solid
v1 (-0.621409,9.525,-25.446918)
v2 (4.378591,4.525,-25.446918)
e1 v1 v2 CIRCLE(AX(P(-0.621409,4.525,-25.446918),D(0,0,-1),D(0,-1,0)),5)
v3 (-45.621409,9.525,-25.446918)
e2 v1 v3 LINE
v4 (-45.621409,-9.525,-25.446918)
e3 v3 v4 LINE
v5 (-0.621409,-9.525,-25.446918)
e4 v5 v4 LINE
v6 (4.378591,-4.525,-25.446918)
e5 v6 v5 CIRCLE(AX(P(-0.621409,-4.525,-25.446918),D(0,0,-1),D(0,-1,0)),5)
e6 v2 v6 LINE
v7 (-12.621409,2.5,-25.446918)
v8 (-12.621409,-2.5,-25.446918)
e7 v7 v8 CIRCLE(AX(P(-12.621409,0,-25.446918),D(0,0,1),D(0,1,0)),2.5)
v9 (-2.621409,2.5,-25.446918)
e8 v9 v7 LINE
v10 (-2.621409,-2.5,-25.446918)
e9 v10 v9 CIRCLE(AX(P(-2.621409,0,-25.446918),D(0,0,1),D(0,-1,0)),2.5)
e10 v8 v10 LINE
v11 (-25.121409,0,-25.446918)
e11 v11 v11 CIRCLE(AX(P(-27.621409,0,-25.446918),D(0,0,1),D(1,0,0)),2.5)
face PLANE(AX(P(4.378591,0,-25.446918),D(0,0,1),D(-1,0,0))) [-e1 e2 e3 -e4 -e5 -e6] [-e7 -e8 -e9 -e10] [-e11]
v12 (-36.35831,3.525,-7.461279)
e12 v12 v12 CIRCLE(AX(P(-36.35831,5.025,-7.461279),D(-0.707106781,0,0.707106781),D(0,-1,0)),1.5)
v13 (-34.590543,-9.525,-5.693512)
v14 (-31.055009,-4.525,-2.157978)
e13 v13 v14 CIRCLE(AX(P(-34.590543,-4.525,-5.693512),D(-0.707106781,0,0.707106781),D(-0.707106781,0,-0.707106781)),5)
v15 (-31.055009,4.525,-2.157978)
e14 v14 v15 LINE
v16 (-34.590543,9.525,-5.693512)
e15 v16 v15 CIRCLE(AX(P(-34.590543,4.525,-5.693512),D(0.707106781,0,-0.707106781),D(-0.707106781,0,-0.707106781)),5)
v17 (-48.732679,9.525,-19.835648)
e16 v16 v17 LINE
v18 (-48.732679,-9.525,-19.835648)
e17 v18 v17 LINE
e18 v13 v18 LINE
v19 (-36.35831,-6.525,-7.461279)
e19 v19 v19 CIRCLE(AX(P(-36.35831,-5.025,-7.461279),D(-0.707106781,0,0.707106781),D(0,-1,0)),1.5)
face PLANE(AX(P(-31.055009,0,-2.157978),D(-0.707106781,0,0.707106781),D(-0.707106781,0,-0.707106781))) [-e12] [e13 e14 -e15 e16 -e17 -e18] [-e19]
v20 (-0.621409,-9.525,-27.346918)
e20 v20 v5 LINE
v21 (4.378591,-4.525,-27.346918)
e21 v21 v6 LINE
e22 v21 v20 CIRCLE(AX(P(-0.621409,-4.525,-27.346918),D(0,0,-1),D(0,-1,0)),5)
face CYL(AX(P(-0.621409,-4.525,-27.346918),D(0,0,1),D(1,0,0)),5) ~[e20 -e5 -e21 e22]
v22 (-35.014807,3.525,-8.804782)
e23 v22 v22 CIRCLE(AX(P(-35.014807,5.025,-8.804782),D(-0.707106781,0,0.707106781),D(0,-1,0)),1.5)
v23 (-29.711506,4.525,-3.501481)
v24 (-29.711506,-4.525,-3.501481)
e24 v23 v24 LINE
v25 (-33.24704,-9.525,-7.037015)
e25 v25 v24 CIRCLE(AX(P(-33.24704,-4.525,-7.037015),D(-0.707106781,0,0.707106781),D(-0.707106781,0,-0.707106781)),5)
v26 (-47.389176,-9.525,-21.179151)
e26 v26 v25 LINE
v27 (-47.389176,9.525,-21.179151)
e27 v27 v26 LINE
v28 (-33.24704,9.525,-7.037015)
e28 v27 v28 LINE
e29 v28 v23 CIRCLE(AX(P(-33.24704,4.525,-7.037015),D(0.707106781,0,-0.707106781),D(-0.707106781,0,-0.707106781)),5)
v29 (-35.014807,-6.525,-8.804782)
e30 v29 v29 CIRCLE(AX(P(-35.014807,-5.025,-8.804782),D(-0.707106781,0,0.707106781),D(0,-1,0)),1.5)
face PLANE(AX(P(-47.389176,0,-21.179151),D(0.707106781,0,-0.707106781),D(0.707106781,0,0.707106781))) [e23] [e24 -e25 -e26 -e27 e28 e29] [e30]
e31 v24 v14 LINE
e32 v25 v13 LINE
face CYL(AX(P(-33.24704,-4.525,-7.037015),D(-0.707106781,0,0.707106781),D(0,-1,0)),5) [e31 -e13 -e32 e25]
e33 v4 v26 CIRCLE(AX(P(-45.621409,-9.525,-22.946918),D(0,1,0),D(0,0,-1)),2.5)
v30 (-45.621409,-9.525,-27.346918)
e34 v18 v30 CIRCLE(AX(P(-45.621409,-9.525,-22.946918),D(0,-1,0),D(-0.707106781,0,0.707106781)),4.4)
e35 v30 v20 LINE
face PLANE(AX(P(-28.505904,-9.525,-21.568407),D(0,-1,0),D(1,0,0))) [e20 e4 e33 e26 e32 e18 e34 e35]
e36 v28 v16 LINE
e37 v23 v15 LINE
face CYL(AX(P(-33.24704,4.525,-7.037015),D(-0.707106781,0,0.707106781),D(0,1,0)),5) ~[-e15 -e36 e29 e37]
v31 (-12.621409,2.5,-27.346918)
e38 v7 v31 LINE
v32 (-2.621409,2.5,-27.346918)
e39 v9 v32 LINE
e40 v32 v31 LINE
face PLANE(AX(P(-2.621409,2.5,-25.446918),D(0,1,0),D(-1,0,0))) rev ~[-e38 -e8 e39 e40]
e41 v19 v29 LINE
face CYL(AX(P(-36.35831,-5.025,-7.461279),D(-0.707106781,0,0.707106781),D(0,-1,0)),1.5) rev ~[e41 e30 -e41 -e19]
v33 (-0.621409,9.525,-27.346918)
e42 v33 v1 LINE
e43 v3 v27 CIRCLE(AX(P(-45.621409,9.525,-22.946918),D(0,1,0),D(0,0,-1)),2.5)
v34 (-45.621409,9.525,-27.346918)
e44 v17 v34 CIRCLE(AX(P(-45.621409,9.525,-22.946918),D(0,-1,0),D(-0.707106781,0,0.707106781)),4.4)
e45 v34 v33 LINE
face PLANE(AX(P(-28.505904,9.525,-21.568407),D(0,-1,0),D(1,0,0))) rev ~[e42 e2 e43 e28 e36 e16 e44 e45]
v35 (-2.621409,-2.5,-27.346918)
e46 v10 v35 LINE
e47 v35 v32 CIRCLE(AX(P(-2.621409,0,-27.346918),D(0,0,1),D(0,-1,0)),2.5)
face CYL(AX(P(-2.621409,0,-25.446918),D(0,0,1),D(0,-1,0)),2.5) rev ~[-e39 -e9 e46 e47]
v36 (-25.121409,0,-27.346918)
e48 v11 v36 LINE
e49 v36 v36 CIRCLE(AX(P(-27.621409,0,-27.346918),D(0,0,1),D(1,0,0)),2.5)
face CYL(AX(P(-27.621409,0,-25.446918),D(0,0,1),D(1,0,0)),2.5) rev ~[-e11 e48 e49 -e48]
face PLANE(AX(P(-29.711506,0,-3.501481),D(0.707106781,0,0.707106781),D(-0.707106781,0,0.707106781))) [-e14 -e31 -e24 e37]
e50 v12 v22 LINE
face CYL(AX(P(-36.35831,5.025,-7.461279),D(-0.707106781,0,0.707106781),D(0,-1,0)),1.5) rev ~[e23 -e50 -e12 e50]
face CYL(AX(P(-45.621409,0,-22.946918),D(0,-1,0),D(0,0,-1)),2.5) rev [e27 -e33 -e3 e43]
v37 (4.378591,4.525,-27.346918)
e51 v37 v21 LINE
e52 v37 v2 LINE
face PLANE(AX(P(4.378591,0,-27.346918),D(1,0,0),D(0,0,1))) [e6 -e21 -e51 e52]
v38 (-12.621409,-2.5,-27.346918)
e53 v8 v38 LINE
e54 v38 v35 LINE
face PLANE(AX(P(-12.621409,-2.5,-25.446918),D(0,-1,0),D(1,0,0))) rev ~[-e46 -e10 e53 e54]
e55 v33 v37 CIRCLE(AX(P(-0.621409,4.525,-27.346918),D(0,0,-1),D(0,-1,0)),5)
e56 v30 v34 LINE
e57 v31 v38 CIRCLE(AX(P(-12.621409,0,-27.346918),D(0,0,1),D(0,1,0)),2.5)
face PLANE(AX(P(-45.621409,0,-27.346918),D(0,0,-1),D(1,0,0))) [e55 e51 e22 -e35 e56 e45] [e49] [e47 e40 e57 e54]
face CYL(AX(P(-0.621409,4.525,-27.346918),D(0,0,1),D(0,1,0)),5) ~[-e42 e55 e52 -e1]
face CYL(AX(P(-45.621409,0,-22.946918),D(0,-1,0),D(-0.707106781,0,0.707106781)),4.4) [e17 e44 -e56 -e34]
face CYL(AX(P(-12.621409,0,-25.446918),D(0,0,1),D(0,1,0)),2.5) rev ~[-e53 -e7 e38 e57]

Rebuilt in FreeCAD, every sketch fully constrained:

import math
import FreeCAD as App
import Part
import Sketcher
Q = App.Units.Quantity


def edges_at(feature, points):
    """Names of the edges that pass closest to the given points."""
    edges = feature.Shape.Edges
    near = lambda p: min(range(len(edges)), key=lambda i: edges[i].distToShape(Part.Vertex(*p))[0])
    return sorted({f"Edge{near(p) + 1}" for p in points})

doc = App.newDocument("Part")
body = doc.addObject("PartDesign::Body", "Body")

sketch1 = doc.addObject("Sketcher::SketchObject", "Sketch")
body.addObject(sketch1)
sketch1.AttachmentSupport = (doc.XZ_Plane, [""])
sketch1.MapMode = "FlatFace"
sketch1.addGeometry([
    Part.LineSegment(App.Vector(-45.6, -27.3, 0), App.Vector(4.4, -27.3, 0)),
    Part.LineSegment(App.Vector(4.4, -27.3, 0), App.Vector(4.4, -25.4, 0)),
    Part.LineSegment(App.Vector(4.4, -25.4, 0), App.Vector(-45.6, -25.4, 0)),
    Part.ArcOfCircle(Part.Circle(App.Vector(-45.6, -22.9, 0), App.Vector(0, 0, 1), 2.5), math.radians(135), math.radians(270)),
    Part.LineSegment(App.Vector(-47.4, -21.2, 0), App.Vector(-29.7, -3.5, 0)),
    Part.LineSegment(App.Vector(-29.7, -3.5, 0), App.Vector(-31.1, -2.2, 0)),
    Part.LineSegment(App.Vector(-31.1, -2.2, 0), App.Vector(-48.7, -19.8, 0)),
    Part.ArcOfCircle(Part.Circle(App.Vector(-45.6, -22.9, 0), App.Vector(0, 0, 1), 4.4), math.radians(135), math.radians(270)),
], False)
sketch1.addConstraint([
    Sketcher.Constraint("Coincident", 0, 2, 1, 1),
    Sketcher.Constraint("Coincident", 1, 2, 2, 1),
    Sketcher.Constraint("Tangent", 2, 2, 3, 2),
    Sketcher.Constraint("Tangent", 3, 1, 4, 1),
    Sketcher.Constraint("Coincident", 4, 2, 5, 1),
    Sketcher.Constraint("Coincident", 5, 2, 6, 1),
    Sketcher.Constraint("Tangent", 6, 2, 7, 1),
    Sketcher.Constraint("Tangent", 7, 2, 0, 1),
    Sketcher.Constraint("Horizontal", 0),
    Sketcher.Constraint("Vertical", 1),
    Sketcher.Constraint("Horizontal", 2),
    Sketcher.Constraint("Coincident", 7, 3, 3, 3),
    Sketcher.Constraint("Perpendicular", 4, 5),
    Sketcher.Constraint("Perpendicular", 5, 6),
    Sketcher.Constraint("Radius", 3, Q("2.5 mm")),
    Sketcher.Constraint("Radius", 7, Q("4.4 mm")),
    Sketcher.Constraint("DistanceX", 0, 1, 0, 2, Q("50 mm")),
    Sketcher.Constraint("Angle", 4, Q("45 deg")),
    Sketcher.Constraint("Distance", 4, Q("25 mm")),
    Sketcher.Constraint("DistanceX", 3, 3, -1, 1, Q("45.621409 mm")),
    Sketcher.Constraint("DistanceY", 3, 1, -1, 1, Q("21.179151 mm")),
])
pad1 = doc.addObject("PartDesign::Pad", "Pad")
body.addObject(pad1)
pad1.Profile = sketch1
pad1.Length = 19.05
pad1.Midplane = True

sketch2 = doc.addObject("Sketcher::SketchObject", "Sketch001")
body.addObject(sketch2)
sketch2.Placement = App.Placement(App.Vector(-14.448515, 0, 14.448515), App.Rotation(App.Vector(0, -1, 0), App.Vector(0.707106781, 0, 0.707106781), App.Vector(-0.707106781, 0, 0.707106781), "ZXY"))
sketch2.addGeometry([
    Part.Circle(App.Vector(-5, -31, 0), App.Vector(0, 0, 1), 1.5),
    Part.Circle(App.Vector(5, -31, 0), App.Vector(0, 0, 1), 1.5),
], False)
sketch2.addConstraint([
    Sketcher.Constraint("Equal", 0, 1),
    Sketcher.Constraint("Symmetric", 0, 3, 1, 3, -2),
    Sketcher.Constraint("Diameter", 0, Q("3 mm")),
    Sketcher.Constraint("DistanceX", 0, 3, 1, 3, Q("10.05 mm")),
    Sketcher.Constraint("DistanceY", 0, 3, -1, 1, Q("30.985129 mm")),
])
pocket1 = doc.addObject("PartDesign::Pocket", "Pocket")
body.addObject(pocket1)
pocket1.Profile = sketch2
pocket1.Length = 1.9

sketch3 = doc.addObject("Sketcher::SketchObject", "Sketch002")
body.addObject(sketch3)
sketch3.AttachmentSupport = (doc.XY_Plane, [""])
sketch3.MapMode = "FlatFace"
sketch3.AttachmentOffset = App.Placement(App.Vector(0, 0, -25.446918), App.Rotation())
sketch3.addGeometry([
    Part.Circle(App.Vector(-27.6, 0, 0), App.Vector(0, 0, 1), 2.5),
    Part.LineSegment(App.Vector(-2.6, 2.5, 0), App.Vector(-12.6, 2.5, 0)),
    Part.ArcOfCircle(Part.Circle(App.Vector(-12.6, 0, 0), App.Vector(0, 0, 1), 2.5), math.radians(90), math.radians(270)),
    Part.LineSegment(App.Vector(-12.6, -2.5, 0), App.Vector(-2.6, -2.5, 0)),
    Part.ArcOfCircle(Part.Circle(App.Vector(-2.6, 0, 0), App.Vector(0, 0, 1), 2.5), math.radians(-90), math.radians(90)),
], False)
sketch3.addConstraint([
    Sketcher.Constraint("Tangent", 1, 2, 2, 1),
    Sketcher.Constraint("Tangent", 2, 2, 3, 1),
    Sketcher.Constraint("Tangent", 3, 2, 4, 1),
    Sketcher.Constraint("Tangent", 4, 2, 1, 1),
    Sketcher.Constraint("Horizontal", 1),
    Sketcher.Constraint("Horizontal", 3),
    Sketcher.Constraint("Equal", 0, 2),
    Sketcher.Constraint("PointOnObject", 0, 3, -1),
    Sketcher.Constraint("PointOnObject", 2, 3, -1),
    Sketcher.Constraint("Diameter", 0, Q("5 mm")),
    Sketcher.Constraint("DistanceX", 1, 2, 1, 1, Q("10 mm")),
    Sketcher.Constraint("DistanceX", 0, 3, 2, 3, Q("15 mm")),
    Sketcher.Constraint("DistanceX", 0, 3, -1, 1, Q("27.621409 mm")),
])
pocket2 = doc.addObject("PartDesign::Pocket", "Pocket001")
body.addObject(pocket2)
pocket2.Profile = sketch3
pocket2.Type = "ThroughAll"
doc.recompute()

fillet = doc.addObject("PartDesign::Fillet", "Fillet")
body.addObject(fillet)
fillet.Base = (pocket2, edges_at(pocket2, [
    (4.379, -9.525, -26.397),
    (4.379, 9.525, -26.397),
    (-30.383, 9.525, -2.83),
    (-30.383, -9.525, -2.83),
]))
fillet.Radius = 5

doc.recompute()
